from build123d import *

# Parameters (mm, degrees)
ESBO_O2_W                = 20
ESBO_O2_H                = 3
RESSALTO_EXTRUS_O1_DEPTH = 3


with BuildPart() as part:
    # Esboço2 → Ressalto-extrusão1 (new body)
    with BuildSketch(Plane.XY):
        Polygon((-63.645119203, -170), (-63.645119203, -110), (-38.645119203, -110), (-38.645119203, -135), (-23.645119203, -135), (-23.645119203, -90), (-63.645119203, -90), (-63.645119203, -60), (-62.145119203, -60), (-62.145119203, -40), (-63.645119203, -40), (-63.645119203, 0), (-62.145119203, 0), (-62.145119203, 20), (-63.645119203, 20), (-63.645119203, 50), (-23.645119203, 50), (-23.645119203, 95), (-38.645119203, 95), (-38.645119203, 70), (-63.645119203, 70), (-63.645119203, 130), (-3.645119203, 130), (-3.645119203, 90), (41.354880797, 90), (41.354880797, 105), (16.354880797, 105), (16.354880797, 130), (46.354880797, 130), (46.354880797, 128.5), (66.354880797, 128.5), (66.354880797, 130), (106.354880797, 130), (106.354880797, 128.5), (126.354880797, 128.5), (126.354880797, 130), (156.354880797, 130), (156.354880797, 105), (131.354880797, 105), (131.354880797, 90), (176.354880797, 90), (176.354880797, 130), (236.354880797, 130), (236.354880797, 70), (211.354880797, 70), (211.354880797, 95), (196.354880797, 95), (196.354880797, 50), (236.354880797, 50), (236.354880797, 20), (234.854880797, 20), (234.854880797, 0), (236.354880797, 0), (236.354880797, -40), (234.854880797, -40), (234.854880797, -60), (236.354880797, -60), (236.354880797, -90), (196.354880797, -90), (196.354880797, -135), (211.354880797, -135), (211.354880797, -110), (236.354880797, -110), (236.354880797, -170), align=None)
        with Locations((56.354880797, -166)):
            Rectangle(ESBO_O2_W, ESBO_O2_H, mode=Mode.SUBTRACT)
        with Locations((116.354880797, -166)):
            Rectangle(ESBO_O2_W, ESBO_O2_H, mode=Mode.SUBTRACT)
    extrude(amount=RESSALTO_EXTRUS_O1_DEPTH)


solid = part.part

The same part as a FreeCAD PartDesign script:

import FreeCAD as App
import Part
import Sketcher
from FreeCAD import Vector
Q = App.Units.Quantity

doc = App.newDocument("Part")
body = doc.addObject("PartDesign::Body", "Body")

# Sketch on XY plane
sketch1 = doc.addObject("Sketcher::SketchObject", "Sketch")
body.addObject(sketch1)
sketch1.AttachmentSupport = (doc.XY_Plane, [""])
sketch1.MapMode = "FlatFace"
sketch1.addGeometry(Part.LineSegment(Vector(-63.6, -110, 0), Vector(-63.6, -170, 0)), False)
sketch1.addGeometry(Part.LineSegment(Vector(-63.6, -170, 0), Vector(236.4, -170, 0)), False)
sketch1.addGeometry(Part.LineSegment(Vector(236.4, -170, 0), Vector(236.4, -110, 0)), False)
sketch1.addGeometry(Part.LineSegment(Vector(236.4, -110, 0), Vector(211.4, -110, 0)), False)
sketch1.addGeometry(Part.LineSegment(Vector(211.4, -110, 0), Vector(211.4, -135, 0)), False)
sketch1.addGeometry(Part.LineSegment(Vector(211.4, -135, 0), Vector(196.4, -135, 0)), False)
sketch1.addGeometry(Part.LineSegment(Vector(196.4, -135, 0), Vector(196.4, -90, 0)), False)
sketch1.addGeometry(Part.LineSegment(Vector(196.4, -90, 0), Vector(236.4, -90, 0)), False)
sketch1.addGeometry(Part.LineSegment(Vector(236.4, -90, 0), Vector(236.4, -60, 0)), False)
sketch1.addGeometry(Part.LineSegment(Vector(236.4, -60, 0), Vector(234.9, -60, 0)), False)
sketch1.addGeometry(Part.LineSegment(Vector(234.9, -60, 0), Vector(234.9, -40, 0)), False)
sketch1.addGeometry(Part.LineSegment(Vector(234.9, -40, 0), Vector(236.4, -40, 0)), False)
sketch1.addGeometry(Part.LineSegment(Vector(236.4, -40, 0), Vector(236.4, 0, 0)), False)
sketch1.addGeometry(Part.LineSegment(Vector(236.4, 0, 0), Vector(234.9, 0, 0)), False)
sketch1.addGeometry(Part.LineSegment(Vector(234.9, 0, 0), Vector(234.9, 20, 0)), False)
sketch1.addGeometry(Part.LineSegment(Vector(234.9, 20, 0), Vector(236.4, 20, 0)), False)
sketch1.addGeometry(Part.LineSegment(Vector(236.4, 20, 0), Vector(236.4, 50, 0)), False)
sketch1.addGeometry(Part.LineSegment(Vector(236.4, 50, 0), Vector(196.4, 50, 0)), False)
sketch1.addGeometry(Part.LineSegment(Vector(196.4, 50, 0), Vector(196.4, 95, 0)), False)
sketch1.addGeometry(Part.LineSegment(Vector(196.4, 95, 0), Vector(211.4, 95, 0)), False)
sketch1.addGeometry(Part.LineSegment(Vector(211.4, 95, 0), Vector(211.4, 70, 0)), False)
sketch1.addGeometry(Part.LineSegment(Vector(211.4, 70, 0), Vector(236.4, 70, 0)), False)
sketch1.addGeometry(Part.LineSegment(Vector(236.4, 70, 0), Vector(236.4, 130, 0)), False)
sketch1.addGeometry(Part.LineSegment(Vector(236.4, 130, 0), Vector(176.4, 130, 0)), False)
sketch1.addGeometry(Part.LineSegment(Vector(176.4, 130, 0), Vector(176.4, 90, 0)), False)
sketch1.addGeometry(Part.LineSegment(Vector(176.4, 90, 0), Vector(131.4, 90, 0)), False)
sketch1.addGeometry(Part.LineSegment(Vector(131.4, 90, 0), Vector(131.4, 105, 0)), False)
sketch1.addGeometry(Part.LineSegment(Vector(131.4, 105, 0), Vector(156.4, 105, 0)), False)
sketch1.addGeometry(Part.LineSegment(Vector(156.4, 105, 0), Vector(156.4, 130, 0)), False)
sketch1.addGeometry(Part.LineSegment(Vector(156.4, 130, 0), Vector(126.4, 130, 0)), False)
sketch1.addGeometry(Part.LineSegment(Vector(126.4, 130, 0), Vector(126.4, 128.5, 0)), False)
sketch1.addGeometry(Part.LineSegment(Vector(126.4, 128.5, 0), Vector(106.4, 128.5, 0)), False)
sketch1.addGeometry(Part.LineSegment(Vector(106.4, 128.5, 0), Vector(106.4, 130, 0)), False)
sketch1.addGeometry(Part.LineSegment(Vector(106.4, 130, 0), Vector(66.4, 130, 0)), False)
sketch1.addGeometry(Part.LineSegment(Vector(66.4, 130, 0), Vector(66.4, 128.5, 0)), False)
sketch1.addGeometry(Part.LineSegment(Vector(66.4, 128.5, 0), Vector(46.4, 128.5, 0)), False)
sketch1.addGeometry(Part.LineSegment(Vector(46.4, 128.5, 0), Vector(46.4, 130, 0)), False)
sketch1.addGeometry(Part.LineSegment(Vector(46.4, 130, 0), Vector(16.4, 130, 0)), False)
sketch1.addGeometry(Part.LineSegment(Vector(16.4, 130, 0), Vector(16.4, 105, 0)), False)
sketch1.addGeometry(Part.LineSegment(Vector(16.4, 105, 0), Vector(41.4, 105, 0)), False)
sketch1.addGeometry(Part.LineSegment(Vector(41.4, 105, 0), Vector(41.4, 90, 0)), False)
sketch1.addGeometry(Part.LineSegment(Vector(41.4, 90, 0), Vector(-3.6, 90, 0)), False)
sketch1.addGeometry(Part.LineSegment(Vector(-3.6, 90, 0), Vector(-3.6, 130, 0)), False)
sketch1.addGeometry(Part.LineSegment(Vector(-3.6, 130, 0), Vector(-63.6, 130, 0)), False)
sketch1.addGeometry(Part.LineSegment(Vector(-63.6, 130, 0), Vector(-63.6, 70, 0)), False)
sketch1.addGeometry(Part.LineSegment(Vector(-63.6, 70, 0), Vector(-38.6, 70, 0)), False)
sketch1.addGeometry(Part.LineSegment(Vector(-38.6, 70, 0), Vector(-38.6, 95, 0)), False)
sketch1.addGeometry(Part.LineSegment(Vector(-38.6, 95, 0), Vector(-23.6, 95, 0)), False)
sketch1.addGeometry(Part.LineSegment(Vector(-23.6, 95, 0), Vector(-23.6, 50, 0)), False)
sketch1.addGeometry(Part.LineSegment(Vector(-23.6, 50, 0), Vector(-63.6, 50, 0)), False)
sketch1.addGeometry(Part.LineSegment(Vector(-63.6, 50, 0), Vector(-63.6, 20, 0)), False)
sketch1.addGeometry(Part.LineSegment(Vector(-63.6, 20, 0), Vector(-62.1, 20, 0)), False)
sketch1.addGeometry(Part.LineSegment(Vector(-62.1, 20, 0), Vector(-62.1, 0, 0)), False)
sketch1.addGeometry(Part.LineSegment(Vector(-62.1, 0, 0), Vector(-63.6, 0, 0)), False)
sketch1.addGeometry(Part.LineSegment(Vector(-63.6, 0, 0), Vector(-63.6, -40, 0)), False)
sketch1.addGeometry(Part.LineSegment(Vector(-63.6, -40, 0), Vector(-62.1, -40, 0)), False)
sketch1.addGeometry(Part.LineSegment(Vector(-62.1, -40, 0), Vector(-62.1, -60, 0)), False)
sketch1.addGeometry(Part.LineSegment(Vector(-62.1, -60, 0), Vector(-63.6, -60, 0)), False)
sketch1.addGeometry(Part.LineSegment(Vector(-63.6, -60, 0), Vector(-63.6, -90, 0)), False)
sketch1.addGeometry(Part.LineSegment(Vector(-63.6, -90, 0), Vector(-23.6, -90, 0)), False)
sketch1.addGeometry(Part.LineSegment(Vector(-23.6, -90, 0), Vector(-23.6, -135, 0)), False)
sketch1.addGeometry(Part.LineSegment(Vector(-23.6, -135, 0), Vector(-38.6, -135, 0)), False)
sketch1.addGeometry(Part.LineSegment(Vector(-38.6, -135, 0), Vector(-38.6, -110, 0)), False)
sketch1.addGeometry(Part.LineSegment(Vector(-38.6, -110, 0), Vector(-63.6, -110, 0)), False)
sketch1.addGeometry(Part.LineSegment(Vector(106.4, -167.5, 0), Vector(106.4, -164.5, 0)), False)
sketch1.addGeometry(Part.LineSegment(Vector(106.4, -164.5, 0), Vector(126.4, -164.5, 0)), False)
sketch1.addGeometry(Part.LineSegment(Vector(126.4, -164.5, 0), Vector(126.4, -167.5, 0)), False)
sketch1.addGeometry(Part.LineSegment(Vector(126.4, -167.5, 0), Vector(106.4, -167.5, 0)), False)
sketch1.addGeometry(Part.LineSegment(Vector(46.4, -167.5, 0), Vector(46.4, -164.5, 0)), False)
sketch1.addGeometry(Part.LineSegment(Vector(46.4, -164.5, 0), Vector(66.4, -164.5, 0)), False)
sketch1.addGeometry(Part.LineSegment(Vector(66.4, -164.5, 0), Vector(66.4, -167.5, 0)), False)
sketch1.addGeometry(Part.LineSegment(Vector(66.4, -167.5, 0), Vector(46.4, -167.5, 0)), False)
sketch1.addConstraint(Sketcher.Constraint("Coincident", 0, 2, 1, 1))
sketch1.addConstraint(Sketcher.Constraint("Coincident", 1, 2, 2, 1))
sketch1.addConstraint(Sketcher.Constraint("Coincident", 2, 2, 3, 1))
sketch1.addConstraint(Sketcher.Constraint("Coincident", 3, 2, 4, 1))
sketch1.addConstraint(Sketcher.Constraint("Coincident", 4, 2, 5, 1))
sketch1.addConstraint(Sketcher.Constraint("Coincident", 5, 2, 6, 1))
sketch1.addConstraint(Sketcher.Constraint("Coincident", 6, 2, 7, 1))
sketch1.addConstraint(Sketcher.Constraint("Coincident", 7, 2, 8, 1))
sketch1.addConstraint(Sketcher.Constraint("Coincident", 8, 2, 9, 1))
sketch1.addConstraint(Sketcher.Constraint("Coincident", 9, 2, 10, 1))
sketch1.addConstraint(Sketcher.Constraint("Coincident", 10, 2, 11, 1))
sketch1.addConstraint(Sketcher.Constraint("Coincident", 11, 2, 12, 1))
sketch1.addConstraint(Sketcher.Constraint("Coincident", 12, 2, 13, 1))
sketch1.addConstraint(Sketcher.Constraint("Coincident", 13, 2, 14, 1))
sketch1.addConstraint(Sketcher.Constraint("Coincident", 14, 2, 15, 1))
sketch1.addConstraint(Sketcher.Constraint("Coincident", 15, 2, 16, 1))
sketch1.addConstraint(Sketcher.Constraint("Coincident", 16, 2, 17, 1))
sketch1.addConstraint(Sketcher.Constraint("Coincident", 17, 2, 18, 1))
sketch1.addConstraint(Sketcher.Constraint("Coincident", 18, 2, 19, 1))
sketch1.addConstraint(Sketcher.Constraint("Coincident", 19, 2, 20, 1))
sketch1.addConstraint(Sketcher.Constraint("Coincident", 20, 2, 21, 1))
sketch1.addConstraint(Sketcher.Constraint("Coincident", 21, 2, 22, 1))
sketch1.addConstraint(Sketcher.Constraint("Coincident", 22, 2, 23, 1))
sketch1.addConstraint(Sketcher.Constraint("Coincident", 23, 2, 24, 1))
sketch1.addConstraint(Sketcher.Constraint("Coincident", 24, 2, 25, 1))
sketch1.addConstraint(Sketcher.Constraint("Coincident", 25, 2, 26, 1))
sketch1.addConstraint(Sketcher.Constraint("Coincident", 26, 2, 27, 1))
sketch1.addConstraint(Sketcher.Constraint("Coincident", 27, 2, 28, 1))
sketch1.addConstraint(Sketcher.Constraint("Coincident", 28, 2, 29, 1))
sketch1.addConstraint(Sketcher.Constraint("Coincident", 29, 2, 30, 1))
sketch1.addConstraint(Sketcher.Constraint("Coincident", 30, 2, 31, 1))
sketch1.addConstraint(Sketcher.Constraint("Coincident", 31, 2, 32, 1))
sketch1.addConstraint(Sketcher.Constraint("Coincident", 32, 2, 33, 1))
sketch1.addConstraint(Sketcher.Constraint("Coincident", 33, 2, 34, 1))
sketch1.addConstraint(Sketcher.Constraint("Coincident", 34, 2, 35, 1))
sketch1.addConstraint(Sketcher.Constraint("Coincident", 35, 2, 36, 1))
sketch1.addConstraint(Sketcher.Constraint("Coincident", 36, 2, 37, 1))
sketch1.addConstraint(Sketcher.Constraint("Coincident", 37, 2, 38, 1))
sketch1.addConstraint(Sketcher.Constraint("Coincident", 38, 2, 39, 1))
sketch1.addConstraint(Sketcher.Constraint("Coincident", 39, 2, 40, 1))
sketch1.addConstraint(Sketcher.Constraint("Coincident", 40, 2, 41, 1))
sketch1.addConstraint(Sketcher.Constraint("Coincident", 41, 2, 42, 1))
sketch1.addConstraint(Sketcher.Constraint("Coincident", 42, 2, 43, 1))
sketch1.addConstraint(Sketcher.Constraint("Coincident", 43, 2, 44, 1))
sketch1.addConstraint(Sketcher.Constraint("Coincident", 44, 2, 45, 1))
sketch1.addConstraint(Sketcher.Constraint("Coincident", 45, 2, 46, 1))
sketch1.addConstraint(Sketcher.Constraint("Coincident", 46, 2, 47, 1))
sketch1.addConstraint(Sketcher.Constraint("Coincident", 47, 2, 48, 1))
sketch1.addConstraint(Sketcher.Constraint("Coincident", 48, 2, 49, 1))
sketch1.addConstraint(Sketcher.Constraint("Coincident", 49, 2, 50, 1))
sketch1.addConstraint(Sketcher.Constraint("Coincident", 50, 2, 51, 1))
sketch1.addConstraint(Sketcher.Constraint("Coincident", 51, 2, 52, 1))
sketch1.addConstraint(Sketcher.Constraint("Coincident", 52, 2, 53, 1))
sketch1.addConstraint(Sketcher.Constraint("Coincident", 53, 2, 54, 1))
sketch1.addConstraint(Sketcher.Constraint("Coincident", 54, 2, 55, 1))
sketch1.addConstraint(Sketcher.Constraint("Coincident", 55, 2, 56, 1))
sketch1.addConstraint(Sketcher.Constraint("Coincident", 56, 2, 57, 1))
sketch1.addConstraint(Sketcher.Constraint("Coincident", 57, 2, 58, 1))
sketch1.addConstraint(Sketcher.Constraint("Coincident", 58, 2, 59, 1))
sketch1.addConstraint(Sketcher.Constraint("Coincident", 59, 2, 60, 1))
sketch1.addConstraint(Sketcher.Constraint("Coincident", 60, 2, 61, 1))
sketch1.addConstraint(Sketcher.Constraint("Coincident", 61, 2, 62, 1))
sketch1.addConstraint(Sketcher.Constraint("Coincident", 62, 2, 63, 1))
sketch1.addConstraint(Sketcher.Constraint("Coincident", 63, 2, 0, 1))
sketch1.addConstraint(Sketcher.Constraint("Coincident", 64, 2, 65, 1))
sketch1.addConstraint(Sketcher.Constraint("Coincident", 65, 2, 66, 1))
sketch1.addConstraint(Sketcher.Constraint("Coincident", 66, 2, 67, 1))
sketch1.addConstraint(Sketcher.Constraint("Coincident", 67, 2, 64, 1))
sketch1.addConstraint(Sketcher.Constraint("Coincident", 68, 2, 69, 1))
sketch1.addConstraint(Sketcher.Constraint("Coincident", 69, 2, 70, 1))
sketch1.addConstraint(Sketcher.Constraint("Coincident", 70, 2, 71, 1))
sketch1.addConstraint(Sketcher.Constraint("Coincident", 71, 2, 68, 1))
sketch1.addConstraint(Sketcher.Constraint("Vertical", 0))
sketch1.addConstraint(Sketcher.Constraint("Horizontal", 1))
sketch1.addConstraint(Sketcher.Constraint("Vertical", 2))
sketch1.addConstraint(Sketcher.Constraint("Horizontal", 3))
sketch1.addConstraint(Sketcher.Constraint("Vertical", 4))
sketch1.addConstraint(Sketcher.Constraint("Horizontal", 5))
sketch1.addConstraint(Sketcher.Constraint("Vertical", 6))
sketch1.addConstraint(Sketcher.Constraint("Horizontal", 7))
sketch1.addConstraint(Sketcher.Constraint("Vertical", 8))
sketch1.addConstraint(Sketcher.Constraint("Horizontal", 9))
sketch1.addConstraint(Sketcher.Constraint("Vertical", 10))
sketch1.addConstraint(Sketcher.Constraint("Horizontal", 11))
sketch1.addConstraint(Sketcher.Constraint("Vertical", 12))
sketch1.addConstraint(Sketcher.Constraint("Horizontal", 13))
sketch1.addConstraint(Sketcher.Constraint("Vertical", 14))
sketch1.addConstraint(Sketcher.Constraint("Horizontal", 15))
sketch1.addConstraint(Sketcher.Constraint("Vertical", 16))
sketch1.addConstraint(Sketcher.Constraint("Horizontal", 17))
sketch1.addConstraint(Sketcher.Constraint("Vertical", 18))
sketch1.addConstraint(Sketcher.Constraint("Horizontal", 19))
sketch1.addConstraint(Sketcher.Constraint("Vertical", 20))
sketch1.addConstraint(Sketcher.Constraint("Horizontal", 21))
sketch1.addConstraint(Sketcher.Constraint("Vertical", 22))
sketch1.addConstraint(Sketcher.Constraint("Horizontal", 23))
sketch1.addConstraint(Sketcher.Constraint("Vertical", 24))
sketch1.addConstraint(Sketcher.Constraint("Horizontal", 25))
sketch1.addConstraint(Sketcher.Constraint("Vertical", 26))
sketch1.addConstraint(Sketcher.Constraint("Horizontal", 27))
sketch1.addConstraint(Sketcher.Constraint("Vertical", 28))
sketch1.addConstraint(Sketcher.Constraint("Horizontal", 29))
sketch1.addConstraint(Sketcher.Constraint("Vertical", 30))
sketch1.addConstraint(Sketcher.Constraint("Horizontal", 31))
sketch1.addConstraint(Sketcher.Constraint("Vertical", 32))
sketch1.addConstraint(Sketcher.Constraint("Horizontal", 33))
sketch1.addConstraint(Sketcher.Constraint("Vertical", 34))
sketch1.addConstraint(Sketcher.Constraint("Horizontal", 35))
sketch1.addConstraint(Sketcher.Constraint("Vertical", 36))
sketch1.addConstraint(Sketcher.Constraint("Horizontal", 37))
sketch1.addConstraint(Sketcher.Constraint("Vertical", 38))
sketch1.addConstraint(Sketcher.Constraint("Horizontal", 39))
sketch1.addConstraint(Sketcher.Constraint("Vertical", 40))
sketch1.addConstraint(Sketcher.Constraint("Horizontal", 41))
sketch1.addConstraint(Sketcher.Constraint("Vertical", 42))
sketch1.addConstraint(Sketcher.Constraint("Horizontal", 43))
sketch1.addConstraint(Sketcher.Constraint("Vertical", 44))
sketch1.addConstraint(Sketcher.Constraint("Horizontal", 45))
sketch1.addConstraint(Sketcher.Constraint("Vertical", 46))
sketch1.addConstraint(Sketcher.Constraint("Horizontal", 47))
sketch1.addConstraint(Sketcher.Constraint("Vertical", 48))
sketch1.addConstraint(Sketcher.Constraint("Horizontal", 49))
sketch1.addConstraint(Sketcher.Constraint("Vertical", 50))
sketch1.addConstraint(Sketcher.Constraint("Horizontal", 51))
sketch1.addConstraint(Sketcher.Constraint("Vertical", 52))
sketch1.addConstraint(Sketcher.Constraint("Horizontal", 53))
sketch1.addConstraint(Sketcher.Constraint("Vertical", 54))
sketch1.addConstraint(Sketcher.Constraint("Horizontal", 55))
sketch1.addConstraint(Sketcher.Constraint("Vertical", 56))
sketch1.addConstraint(Sketcher.Constraint("Horizontal", 57))
sketch1.addConstraint(Sketcher.Constraint("Vertical", 58))
sketch1.addConstraint(Sketcher.Constraint("Horizontal", 59))
sketch1.addConstraint(Sketcher.Constraint("Vertical", 60))
sketch1.addConstraint(Sketcher.Constraint("Horizontal", 61))
sketch1.addConstraint(Sketcher.Constraint("Vertical", 62))
sketch1.addConstraint(Sketcher.Constraint("Horizontal", 63))
sketch1.addConstraint(Sketcher.Constraint("Vertical", 64))
sketch1.addConstraint(Sketcher.Constraint("Horizontal", 65))
sketch1.addConstraint(Sketcher.Constraint("Vertical", 66))
sketch1.addConstraint(Sketcher.Constraint("Horizontal", 67))
sketch1.addConstraint(Sketcher.Constraint("Vertical", 68))
sketch1.addConstraint(Sketcher.Constraint("Horizontal", 69))
sketch1.addConstraint(Sketcher.Constraint("Vertical", 70))
sketch1.addConstraint(Sketcher.Constraint("Horizontal", 71))
sketch1.addConstraint(Sketcher.Constraint("PointOnObject", 12, 2, -1))
sketch1.addConstraint(Sketcher.Constraint("PointOnObject", 52, 2, -1))
sketch1.addConstraint(Sketcher.Constraint("Horizontal", 23, 2, 28, 2))
sketch1.addConstraint(Sketcher.Constraint("Horizontal", 29, 2, 32, 2))
sketch1.addConstraint(Sketcher.Constraint("Horizontal", 31, 2, 34, 2))
sketch1.addConstraint(Sketcher.Constraint("Horizontal", 33, 2, 36, 2))
sketch1.addConstraint(Sketcher.Constraint("Horizontal", 27, 2, 38, 2))
sketch1.addConstraint(Sketcher.Constraint("Horizontal", 25, 2, 40, 2))
sketch1.addConstraint(Sketcher.Constraint("Horizontal", 37, 2, 42, 2))
sketch1.addConstraint(Sketcher.Constraint("Horizontal", 21, 2, 44, 2))
sketch1.addConstraint(Sketcher.Constraint("Horizontal", 19, 2, 46, 2))
sketch1.addConstraint(Sketcher.Constraint("Horizontal", 17, 2, 48, 2))
sketch1.addConstraint(Sketcher.Constraint("Horizontal", 15, 2, 50, 2))
sketch1.addConstraint(Sketcher.Constraint("Horizontal", 11, 2, 54, 2))
sketch1.addConstraint(Sketcher.Constraint("Horizontal", 9, 2, 56, 2))
sketch1.addConstraint(Sketcher.Constraint("Horizontal", 7, 2, 58, 2))
sketch1.addConstraint(Sketcher.Constraint("Horizontal", 5, 2, 60, 2))
sketch1.addConstraint(Sketcher.Constraint("Horizontal", 3, 2, 62, 2))
sketch1.addConstraint(Sketcher.Constraint("Horizontal", 65, 2, 68, 2))
sketch1.addConstraint(Sketcher.Constraint("Horizontal", 67, 2, 70, 2))
sketch1.addConstraint(Sketcher.Constraint("Vertical", 2, 2, 7, 2))
sketch1.addConstraint(Sketcher.Constraint("Vertical", 8, 2, 11, 2))
sketch1.addConstraint(Sketcher.Constraint("Vertical", 10, 2, 13, 2))
sketch1.addConstraint(Sketcher.Constraint("Vertical", 12, 2, 15, 2))
sketch1.addConstraint(Sketcher.Constraint("Vertical", 6, 2, 17, 2))
sketch1.addConstraint(Sketcher.Constraint("Vertical", 4, 2, 19, 2))
sketch1.addConstraint(Sketcher.Constraint("Vertical", 16, 2, 21, 2))
sketch1.addConstraint(Sketcher.Constraint("Vertical", 0, 2, 43, 2))
sketch1.addConstraint(Sketcher.Constraint("Vertical", 44, 2, 49, 2))
sketch1.addConstraint(Sketcher.Constraint("Vertical", 50, 2, 53, 2))
sketch1.addConstraint(Sketcher.Constraint("Vertical", 52, 2, 55, 2))
sketch1.addConstraint(Sketcher.Constraint("Vertical", 54, 2, 57, 2))
sketch1.addConstraint(Sketcher.Constraint("Vertical", 48, 2, 59, 2))
sketch1.addConstraint(Sketcher.Constraint("Vertical", 46, 2, 61, 2))
sketch1.addConstraint(Sketcher.Constraint("Vertical", 32, 2, 64, 2))
sketch1.addConstraint(Sketcher.Constraint("Vertical", 30, 2, 65, 2))
sketch1.addConstraint(Sketcher.Constraint("Vertical", 36, 2, 68, 2))
sketch1.addConstraint(Sketcher.Constraint("Vertical", 34, 2, 69, 2))
sketch1.addConstraint(Sketcher.Constraint("Equal", 21, 27))
sketch1.addConstraint(Sketcher.Constraint("Equal", 17, 33))
sketch1.addConstraint(Sketcher.Constraint("Equal", 31, 35))
sketch1.addConstraint(Sketcher.Constraint("Equal", 29, 37))
sketch1.addConstraint(Sketcher.Constraint("Equal", 27, 39))
sketch1.addConstraint(Sketcher.Constraint("Equal", 25, 41))
sketch1.addConstraint(Sketcher.Constraint("Equal", 23, 43))
sketch1.addConstraint(Sketcher.Constraint("Equal", 39, 45))
sketch1.addConstraint(Sketcher.Constraint("Equal", 19, 47))
sketch1.addConstraint(Sketcher.Constraint("Equal", 15, 51))
sketch1.addConstraint(Sketcher.Constraint("Equal", 43, 0))
sketch1.addConstraint(Sketcher.Constraint("Equal", 63, 4))
sketch1.addConstraint(Sketcher.Constraint("Equal", 41, 6))
sketch1.addConstraint(Sketcher.Constraint("Equal", 37, 8))
sketch1.addConstraint(Sketcher.Constraint("Equal", 71, 10))
sketch1.addConstraint(Sketcher.Constraint("Equal", 59, 12))
sketch1.addConstraint(Sketcher.Constraint("Equal", 10, 14))
sketch1.addConstraint(Sketcher.Constraint("Equal", 8, 16))
sketch1.addConstraint(Sketcher.Constraint("Equal", 6, 18))
sketch1.addConstraint(Sketcher.Constraint("Equal", 4, 20))
sketch1.addConstraint(Sketcher.Constraint("Equal", 2, 22))
sketch1.addConstraint(Sketcher.Constraint("Equal", 12, 24))
sketch1.addConstraint(Sketcher.Constraint("Equal", 61, 26))
sketch1.addConstraint(Sketcher.Constraint("Equal", 57, 30))
sketch1.addConstraint(Sketcher.Constraint("DistanceX", 1, 1, 1, 2, Q("300 mm")))
sketch1.addConstraint(Sketcher.Constraint("DistanceX", 3, 2, 3, 1, Q("25 mm")))
sketch1.addConstraint(Sketcher.Constraint("DistanceX", 5, 2, 5, 1, Q("15 mm")))
sketch1.addConstraint(Sketcher.Constraint("DistanceX", 23, 2, 23, 1, Q("60 mm")))
sketch1.addConstraint(Sketcher.Constraint("DistanceX", 25, 2, 25, 1, Q("45 mm")))
sketch1.addConstraint(Sketcher.Constraint("DistanceX", 29, 2, 29, 1, Q("30 mm")))
sketch1.addConstraint(Sketcher.Constraint("DistanceY", 64, 1, 64, 2, Q("3 mm")))
sketch1.addConstraint(Sketcher.Constraint("DistanceX", 9, 2, 9, 1, Q("1.5 mm")))
sketch1.addConstraint(Sketcher.Constraint("DistanceY", 64, 2, -1, 1, Q("164.5 mm")))
sketch1.addConstraint(Sketcher.Constraint("DistanceX", 0, 2, -1, 1, Q("63.645119 mm")))
pad1 = doc.addObject("PartDesign::Pad", "Pad")
body.addObject(pad1)
pad1.Profile = sketch1
pad1.Length = 3

doc.recompute()
